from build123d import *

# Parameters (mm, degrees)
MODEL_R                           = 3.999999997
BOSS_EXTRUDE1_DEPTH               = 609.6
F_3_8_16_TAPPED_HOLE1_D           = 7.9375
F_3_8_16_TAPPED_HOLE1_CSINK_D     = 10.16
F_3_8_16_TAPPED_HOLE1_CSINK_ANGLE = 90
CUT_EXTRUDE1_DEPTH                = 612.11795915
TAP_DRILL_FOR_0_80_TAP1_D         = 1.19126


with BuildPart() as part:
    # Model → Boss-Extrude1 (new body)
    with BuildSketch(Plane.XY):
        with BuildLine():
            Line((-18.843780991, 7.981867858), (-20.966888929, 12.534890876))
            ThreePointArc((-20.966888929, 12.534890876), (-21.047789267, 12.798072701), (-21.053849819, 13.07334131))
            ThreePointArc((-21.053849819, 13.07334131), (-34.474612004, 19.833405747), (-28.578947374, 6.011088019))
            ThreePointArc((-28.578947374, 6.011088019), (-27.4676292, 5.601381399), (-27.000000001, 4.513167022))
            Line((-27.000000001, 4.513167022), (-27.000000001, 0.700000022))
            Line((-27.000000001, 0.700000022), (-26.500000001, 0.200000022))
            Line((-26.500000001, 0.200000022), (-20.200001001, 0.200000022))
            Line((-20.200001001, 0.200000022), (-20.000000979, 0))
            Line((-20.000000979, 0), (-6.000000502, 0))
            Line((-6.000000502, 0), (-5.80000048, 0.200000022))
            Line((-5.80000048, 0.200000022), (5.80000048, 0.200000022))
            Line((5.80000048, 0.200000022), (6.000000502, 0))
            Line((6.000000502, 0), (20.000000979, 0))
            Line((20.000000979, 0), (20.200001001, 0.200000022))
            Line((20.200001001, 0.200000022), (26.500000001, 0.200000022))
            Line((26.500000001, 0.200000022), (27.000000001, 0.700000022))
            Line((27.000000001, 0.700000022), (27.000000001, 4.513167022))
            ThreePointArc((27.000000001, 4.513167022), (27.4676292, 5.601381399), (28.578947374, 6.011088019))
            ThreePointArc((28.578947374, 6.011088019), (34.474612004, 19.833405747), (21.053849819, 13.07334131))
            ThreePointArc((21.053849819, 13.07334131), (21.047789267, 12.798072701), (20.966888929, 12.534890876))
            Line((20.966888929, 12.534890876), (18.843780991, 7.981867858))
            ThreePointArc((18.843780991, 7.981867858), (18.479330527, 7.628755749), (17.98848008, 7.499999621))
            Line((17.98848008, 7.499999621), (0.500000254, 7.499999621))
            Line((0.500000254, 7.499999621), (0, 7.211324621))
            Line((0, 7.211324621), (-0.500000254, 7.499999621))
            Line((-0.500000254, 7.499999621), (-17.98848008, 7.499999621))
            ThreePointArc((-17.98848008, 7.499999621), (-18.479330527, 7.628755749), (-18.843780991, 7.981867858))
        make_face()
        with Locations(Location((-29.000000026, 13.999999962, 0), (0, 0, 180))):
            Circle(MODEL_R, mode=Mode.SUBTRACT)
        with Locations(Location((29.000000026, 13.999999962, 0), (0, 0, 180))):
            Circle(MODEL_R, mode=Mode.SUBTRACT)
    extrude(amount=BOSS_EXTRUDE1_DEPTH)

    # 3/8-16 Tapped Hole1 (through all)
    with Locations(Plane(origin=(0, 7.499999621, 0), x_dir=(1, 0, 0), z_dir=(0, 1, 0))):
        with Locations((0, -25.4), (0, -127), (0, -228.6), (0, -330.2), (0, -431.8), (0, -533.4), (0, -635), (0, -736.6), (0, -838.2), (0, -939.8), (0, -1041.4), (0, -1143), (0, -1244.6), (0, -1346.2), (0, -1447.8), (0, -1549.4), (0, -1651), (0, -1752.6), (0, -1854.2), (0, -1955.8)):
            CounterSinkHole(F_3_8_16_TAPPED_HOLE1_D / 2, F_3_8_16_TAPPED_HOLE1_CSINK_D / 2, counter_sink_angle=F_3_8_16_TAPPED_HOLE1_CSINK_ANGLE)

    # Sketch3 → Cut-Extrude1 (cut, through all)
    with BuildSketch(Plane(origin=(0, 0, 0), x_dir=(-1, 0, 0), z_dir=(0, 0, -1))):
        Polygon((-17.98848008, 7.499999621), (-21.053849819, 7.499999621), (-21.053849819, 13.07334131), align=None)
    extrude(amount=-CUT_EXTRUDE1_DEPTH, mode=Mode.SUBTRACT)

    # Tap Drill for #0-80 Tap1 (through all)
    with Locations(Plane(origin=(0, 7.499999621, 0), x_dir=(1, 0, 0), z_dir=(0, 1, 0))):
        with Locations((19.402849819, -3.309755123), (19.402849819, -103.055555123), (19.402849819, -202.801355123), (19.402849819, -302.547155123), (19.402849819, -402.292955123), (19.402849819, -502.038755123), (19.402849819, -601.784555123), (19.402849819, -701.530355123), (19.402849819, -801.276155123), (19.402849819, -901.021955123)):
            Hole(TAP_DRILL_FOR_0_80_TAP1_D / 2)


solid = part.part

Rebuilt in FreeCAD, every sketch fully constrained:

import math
import FreeCAD as App
import Part
import Sketcher

V = App.Vector


def add_polygon(sketch, points):
    """Adds a closed chain of lines whose ends are joined by coincident constraints."""
    first, n = sketch.GeometryCount, len(points)
    for a, b in zip(points, points[1:] + points[:1]):
        sketch.addGeometry(Part.LineSegment(App.Vector(*a, 0), App.Vector(*b, 0)), False)
    for i in range(n):
        sketch.addConstraint(Sketcher.Constraint("Coincident", first + i, 2, first + (i + 1) % n, 1))

doc = App.newDocument("Part")
body = doc.addObject("PartDesign::Body", "Body")

# Sketch on XY plane
sketch1 = body.newObject("Sketcher::SketchObject", "Sketch")
sketch1.AttachmentSupport = (doc.getObject("XY_Plane"), [""])
sketch1.MapMode = "FlatFace"
sketch1.addGeometry([
    Part.LineSegment(V(-18.843781, 7.981868, 0), V(-20.966889, 12.534891, 0)),  # 0
    Part.ArcOfCircle(Part.Circle(V(-20.060581, 12.957509, 0), V(0, 0, 1), 1), math.radians(173.348365), math.radians(204.999984)),  # 1
    Part.ArcOfCircle(Part.Circle(V(-29, 14, 0), V(0, 0, 1), 8), math.radians(-6.651635), math.radians(273.016961)),  # 2
    Part.ArcOfCircle(Part.Circle(V(-28.5, 4.513167, 0), V(0, 0, 1), 1.5), math.radians(0), math.radians(93.016961)),  # 3
    Part.LineSegment(V(-27, 4.513167, 0), V(-27, 0.7, 0)),  # 4
    Part.LineSegment(V(-27, 0.7, 0), V(-26.5, 0.2, 0)),  # 5
    Part.LineSegment(V(-26.5, 0.2, 0), V(-20.200001, 0.2, 0)),  # 6
    Part.LineSegment(V(-20.200001, 0.2, 0), V(-20.000001, 0, 0)),  # 7
    Part.LineSegment(V(-20.000001, 0, 0), V(-6.000001, 0, 0)),  # 8
    Part.LineSegment(V(-6.000001, 0, 0), V(-5.8, 0.2, 0)),  # 9
    Part.LineSegment(V(-5.8, 0.2, 0), V(5.8, 0.2, 0)),  # 10
    Part.LineSegment(V(5.8, 0.2, 0), V(6.000001, 0, 0)),  # 11
    Part.LineSegment(V(6.000001, 0, 0), V(20.000001, 0, 0)),  # 12
    Part.LineSegment(V(20.000001, 0, 0), V(20.200001, 0.2, 0)),  # 13
    Part.LineSegment(V(20.200001, 0.2, 0), V(26.5, 0.2, 0)),  # 14
    Part.LineSegment(V(26.5, 0.2, 0), V(27, 0.7, 0)),  # 15
    Part.LineSegment(V(27, 0.7, 0), V(27, 4.513167, 0)),  # 16
    Part.ArcOfCircle(Part.Circle(V(28.5, 4.513167, 0), V(0, 0, 1), 1.5), math.radians(86.983039), math.radians(180)),  # 17
    Part.ArcOfCircle(Part.Circle(V(29, 14, 0), V(0, 0, 1), 8), math.radians(-93.016961), math.radians(186.651635)),  # 18
    Part.ArcOfCircle(Part.Circle(V(20.060581, 12.957509, 0), V(0, 0, 1), 1), math.radians(-24.999984), math.radians(6.651635)),  # 19
    Part.LineSegment(V(20.966889, 12.534891, 0), V(18.843781, 7.981868, 0)),  # 20
    Part.ArcOfCircle(Part.Circle(V(17.98848, 8.5, 0), V(0, 0, 1), 1), math.radians(-90), math.radians(-31.207023)),  # 21
    Part.LineSegment(V(17.98848, 7.5, 0), V(0.5, 7.5, 0)),  # 22
    Part.LineSegment(V(0.5, 7.5, 0), V(0, 7.211325, 0)),  # 23
    Part.LineSegment(V(0, 7.211325, 0), V(-0.5, 7.5, 0)),  # 24
    Part.LineSegment(V(-0.5, 7.5, 0), V(-17.98848, 7.5, 0)),  # 25
    Part.ArcOfCircle(Part.Circle(V(-17.98848, 8.5, 0), V(0, 0, 1), 1), math.radians(-148.792977), math.radians(-90)),  # 26
    Part.Circle(V(-29, 14, 0), V(0, 0, 1), 4),  # 27
    Part.Circle(V(29, 14, 0), V(0, 0, 1), 4),  # 28
], False)
sketch1.addConstraint([
    Sketcher.Constraint("Coincident", 0, 2, 1, 2),
    Sketcher.Constraint("Coincident", 1, 1, 2, 1),
    Sketcher.Constraint("Coincident", 2, 2, 3, 2),
    Sketcher.Constraint("Coincident", 3, 1, 4, 1),
    Sketcher.Constraint("Coincident", 4, 2, 5, 1),
    Sketcher.Constraint("Coincident", 5, 2, 6, 1),
    Sketcher.Constraint("Coincident", 6, 2, 7, 1),
    Sketcher.Constraint("Coincident", 7, 2, 8, 1),
    Sketcher.Constraint("Coincident", 8, 2, 9, 1),
    Sketcher.Constraint("Coincident", 9, 2, 10, 1),
    Sketcher.Constraint("Coincident", 10, 2, 11, 1),
    Sketcher.Constraint("Coincident", 11, 2, 12, 1),
    Sketcher.Constraint("Coincident", 12, 2, 13, 1),
    Sketcher.Constraint("Coincident", 13, 2, 14, 1),
    Sketcher.Constraint("Coincident", 14, 2, 15, 1),
    Sketcher.Constraint("Coincident", 15, 2, 16, 1),
    Sketcher.Constraint("Coincident", 16, 2, 17, 2),
    Sketcher.Constraint("Coincident", 17, 1, 18, 1),
    Sketcher.Constraint("Coincident", 18, 2, 19, 2),
    Sketcher.Constraint("Coincident", 19, 1, 20, 1),
    Sketcher.Constraint("Coincident", 20, 2, 21, 2),
    Sketcher.Constraint("Coincident", 21, 1, 22, 1),
    Sketcher.Constraint("Coincident", 22, 2, 23, 1),
    Sketcher.Constraint("Coincident", 23, 2, 24, 1),
    Sketcher.Constraint("Coincident", 24, 2, 25, 1),
    Sketcher.Constraint("Coincident", 25, 2, 26, 2),
    Sketcher.Constraint("Coincident", 26, 1, 0, 1),
    Sketcher.Constraint("Vertical", 4),
    Sketcher.Constraint("Horizontal", 6),
    Sketcher.Constraint("Horizontal", 8),
    Sketcher.Constraint("Horizontal", 10),
    Sketcher.Constraint("Horizontal", 12),
    Sketcher.Constraint("Horizontal", 14),
    Sketcher.Constraint("Vertical", 16),
    Sketcher.Constraint("Horizontal", 22),
    Sketcher.Constraint("Horizontal", 25),
    Sketcher.Constraint("Coincident", 27, 3, 2, 3),
    Sketcher.Constraint("Coincident", 28, 3, 18, 3),
    Sketcher.Constraint("PointOnObject", 7, 2, -1),
    Sketcher.Constraint("PointOnObject", 11, 2, -1),
    Sketcher.Constraint("PointOnObject", 23, 2, -2),
    Sketcher.Constraint("Diameter", 27, 8.0),
    Sketcher.Constraint("Diameter", 28, 8.0),
    Sketcher.Constraint("Radius", 1, 1.0),
    Sketcher.Constraint("Radius", 2, 8.0),
    Sketcher.Constraint("Radius", 18, 8.0),
    Sketcher.Constraint("Radius", 19, 1.0),
    Sketcher.Constraint("Radius", 21, 1.0),
    Sketcher.Constraint("Radius", 26, 1.0),
    Sketcher.Constraint("Radius", 3, 1.5),
    Sketcher.Constraint("Radius", 17, 1.5),
    Sketcher.Constraint("DistanceX", 8, 1, 8, 2, 14.0),
    Sketcher.Constraint("DistanceX", 12, 1, 12, 2, 14.0),
    Sketcher.Constraint("DistanceX", 6, 1, 6, 2, 6.299999),
    Sketcher.Constraint("DistanceX", 10, 1, 10, 2, 11.600001),
    Sketcher.Constraint("DistanceX", 14, 1, 14, 2, 6.299999),
    Sketcher.Constraint("DistanceX", 2, 3, -1, 1, 29.0),
    Sketcher.Constraint("DistanceY", -1, 1, 2, 3, 14.0),
    Sketcher.Constraint("DistanceX", -1, 1, 18, 3, 29.0),
    Sketcher.Constraint("DistanceY", -1, 1, 18, 3, 14.0),
    Sketcher.Constraint("DistanceX", 3, 1, -1, 1, 27.0),
    Sketcher.Constraint("DistanceX", 7, 2, -1, 1, 20.000001),
    Sketcher.Constraint("DistanceX", -1, 1, 11, 2, 6.000001),
    Sketcher.Constraint("DistanceX", -1, 1, 15, 2, 27.0),
    Sketcher.Constraint("DistanceX", 3, 3, 5, 2, 2.0),
    Sketcher.Constraint("DistanceX", 14, 2, 17, 3, 2.0),
    Sketcher.Constraint("DistanceX", 24, 2, 22, 2, 1.000001),
    Sketcher.Constraint("DistanceY", -1, 1, 21, 3, 8.5),
    Sketcher.Constraint("DistanceY", -1, 1, 26, 3, 8.5),
    Sketcher.Constraint("DistanceY", -1, 1, 4, 2, 0.7),
    Sketcher.Constraint("DistanceY", -1, 1, 5, 2, 0.2),
    Sketcher.Constraint("DistanceX", 9, 2, -1, 1, 5.8),
    Sketcher.Constraint("DistanceY", -1, 1, 9, 2, 0.2),
    Sketcher.Constraint("DistanceY", -1, 1, 13, 2, 0.2),
    Sketcher.Constraint("DistanceY", -1, 1, 15, 2, 0.7),
    Sketcher.Constraint("DistanceX", -1, 1, 22, 2, 0.5),
    Sketcher.Constraint("DistanceX", 22, 2, 22, 1, 17.48848),
    Sketcher.Constraint("DistanceX", 25, 2, 25, 1, 17.48848),
    Sketcher.Constraint("DistanceX", 21, 3, 19, 3, 2.072101),
    Sketcher.Constraint("DistanceX", 1, 3, 26, 3, 2.072101),
    Sketcher.Constraint("DistanceX", 21, 3, 20, 2, 0.855301),
    Sketcher.Constraint("DistanceX", 21, 1, 20, 2, 0.855301),
    Sketcher.Constraint("DistanceX", 1, 3, 25, 2, 2.072101),
    Sketcher.Constraint("DistanceX", 26, 1, 25, 2, 0.855301),
    Sketcher.Constraint("Distance", 23, 0.57735),
    Sketcher.Constraint("DistanceY", 4, 2, 4, 1, 3.813167),
    Sketcher.Constraint("DistanceY", 16, 1, 16, 2, 3.813167),
    Sketcher.Constraint("DistanceX", 0, 2, -1, 1, 20.966889),
    Sketcher.Constraint("DistanceX", 1, 1, -1, 1, 21.05385),
    Sketcher.Constraint("DistanceY", -1, 1, 2, 2, 6.011088),
    Sketcher.Constraint("DistanceY", -1, 1, 17, 1, 6.011088),
    Sketcher.Constraint("DistanceX", -1, 1, 18, 2, 21.05385),
    Sketcher.Constraint("DistanceX", -1, 1, 19, 1, 20.966889),
])
pad1 = body.newObject("PartDesign::Pad", "Pad")
pad1.Profile = sketch1
pad1.Length = 609.6

# Sketch on XZ plane
sketch2 = body.newObject("Sketcher::SketchObject", "Sketch001")
sketch2.AttachmentSupport = (doc.getObject("XZ_Plane"), [""])
sketch2.MapMode = "FlatFace"
sketch2.AttachmentOffset = App.Placement(V(0, 0, -7.5), App.Rotation())
sketch2.addGeometry([
    Part.Circle(V(0, 25.4, 0), V(0, 0, 1), 3.96875),  # 0
    Part.Circle(V(0, 127, 0), V(0, 0, 1), 3.96875),  # 1
    Part.Circle(V(0, 228.6, 0), V(0, 0, 1), 3.96875),  # 2
    Part.Circle(V(0, 330.2, 0), V(0, 0, 1), 3.96875),  # 3
    Part.Circle(V(0, 431.8, 0), V(0, 0, 1), 3.96875),  # 4
    Part.Circle(V(0, 533.4, 0), V(0, 0, 1), 3.96875),  # 5
    Part.Circle(V(0, 635, 0), V(0, 0, 1), 3.96875),  # 6
    Part.Circle(V(0, 736.6, 0), V(0, 0, 1), 3.96875),  # 7
    Part.Circle(V(0, 838.2, 0), V(0, 0, 1), 3.96875),  # 8
    Part.Circle(V(0, 939.8, 0), V(0, 0, 1), 3.96875),  # 9
    Part.Circle(V(0, 1041.4, 0), V(0, 0, 1), 3.96875),  # 10
    Part.Circle(V(0, 1143, 0), V(0, 0, 1), 3.96875),  # 11
    Part.Circle(V(0, 1244.6, 0), V(0, 0, 1), 3.96875),  # 12
    Part.Circle(V(0, 1346.2, 0), V(0, 0, 1), 3.96875),  # 13
    Part.Circle(V(0, 1447.8, 0), V(0, 0, 1), 3.96875),  # 14
    Part.Circle(V(0, 1549.4, 0), V(0, 0, 1), 3.96875),  # 15
    Part.Circle(V(0, 1651, 0), V(0, 0, 1), 3.96875),  # 16
    Part.Circle(V(0, 1752.6, 0), V(0, 0, 1), 3.96875),  # 17
    Part.Circle(V(0, 1854.2, 0), V(0, 0, 1), 3.96875),  # 18
    Part.Circle(V(0, 1955.8, 0), V(0, 0, 1), 3.96875),  # 19
], False)
sketch2.addConstraint([
    Sketcher.Constraint("Equal", 0, 1),
    Sketcher.Constraint("Equal", 1, 2),
    Sketcher.Constraint("Equal", 2, 3),
    Sketcher.Constraint("Equal", 3, 4),
    Sketcher.Constraint("Equal", 4, 5),
    Sketcher.Constraint("Equal", 5, 6),
    Sketcher.Constraint("Equal", 6, 7),
    Sketcher.Constraint("Equal", 7, 8),
    Sketcher.Constraint("Equal", 8, 9),
    Sketcher.Constraint("Equal", 9, 10),
    Sketcher.Constraint("Equal", 10, 11),
    Sketcher.Constraint("Equal", 11, 12),
    Sketcher.Constraint("Equal", 12, 13),
    Sketcher.Constraint("Equal", 13, 14),
    Sketcher.Constraint("Equal", 14, 15),
    Sketcher.Constraint("Equal", 15, 16),
    Sketcher.Constraint("Equal", 16, 17),
    Sketcher.Constraint("Equal", 17, 18),
    Sketcher.Constraint("Equal", 18, 19),
    Sketcher.Constraint("PointOnObject", 0, 3, -2),
    Sketcher.Constraint("PointOnObject", 1, 3, -2),
    Sketcher.Constraint("PointOnObject", 2, 3, -2),
    Sketcher.Constraint("PointOnObject", 3, 3, -2),
    Sketcher.Constraint("PointOnObject", 4, 3, -2),
    Sketcher.Constraint("PointOnObject", 5, 3, -2),
    Sketcher.Constraint("PointOnObject", 6, 3, -2),
    Sketcher.Constraint("PointOnObject", 7, 3, -2),
    Sketcher.Constraint("PointOnObject", 8, 3, -2),
    Sketcher.Constraint("PointOnObject", 9, 3, -2),
    Sketcher.Constraint("PointOnObject", 10, 3, -2),
    Sketcher.Constraint("PointOnObject", 11, 3, -2),
    Sketcher.Constraint("PointOnObject", 12, 3, -2),
    Sketcher.Constraint("PointOnObject", 13, 3, -2),
    Sketcher.Constraint("PointOnObject", 14, 3, -2),
    Sketcher.Constraint("PointOnObject", 15, 3, -2),
    Sketcher.Constraint("PointOnObject", 16, 3, -2),
    Sketcher.Constraint("PointOnObject", 17, 3, -2),
    Sketcher.Constraint("PointOnObject", 18, 3, -2),
    Sketcher.Constraint("PointOnObject", 19, 3, -2),
    Sketcher.Constraint("DistanceY", -1, 1, 1, 3, 127.0),
    Sketcher.Constraint("DistanceY", -1, 1, 6, 3, 635.0),
    Sketcher.Constraint("DistanceY", -1, 1, 11, 3, 1143.0),
    Sketcher.Constraint("DistanceY", -1, 1, 16, 3, 1651.0),
    Sketcher.Constraint("DistanceY", 0, 3, 5, 3, 508.0),
    Sketcher.Constraint("DistanceY", 2, 3, 7, 3, 508.0),
    Sketcher.Constraint("DistanceY", 3, 3, 8, 3, 508.0),
    Sketcher.Constraint("DistanceY", 4, 3, 9, 3, 508.0),
    Sketcher.Constraint("DistanceY", 5, 3, 10, 3, 508.0),
    Sketcher.Constraint("DistanceY", 7, 3, 12, 3, 508.0),
    Sketcher.Constraint("DistanceY", 8, 3, 13, 3, 508.0),
    Sketcher.Constraint("DistanceY", 9, 3, 14, 3, 508.0),
    Sketcher.Constraint("DistanceY", 10, 3, 15, 3, 508.0),
    Sketcher.Constraint("DistanceY", 12, 3, 17, 3, 508.0),
    Sketcher.Constraint("DistanceY", 13, 3, 18, 3, 508.0),
    Sketcher.Constraint("DistanceY", 14, 3, 19, 3, 508.0),
    Sketcher.Constraint("Diameter", 0, 7.9375),
    Sketcher.Constraint("DistanceY", -1, 1, 0, 3, 25.4),
    Sketcher.Constraint("DistanceY", -1, 1, 2, 3, 228.6),
    Sketcher.Constraint("DistanceY", -1, 1, 3, 3, 330.2),
    Sketcher.Constraint("DistanceY", -1, 1, 4, 3, 431.8),
])
doc.recompute()
hole = body.newObject("PartDesign::Hole", "Hole")
hole.Profile = sketch2
hole.ThreadType = "None"
hole.Diameter = 7.9375
hole.DepthType = "ThroughAll"
hole.HoleCutType = "Countersink"
hole.HoleCutDiameter = 10.16
hole.HoleCutCountersinkAngle = 90
hole.Reversed = True

# Sketch on XY plane
sketch3 = body.newObject("Sketcher::SketchObject", "Sketch002")
sketch3.AttachmentSupport = (doc.getObject("XY_Plane"), [""])
sketch3.MapMode = "FlatFace"
add_polygon(sketch3, [(21.05385, 7.5), (17.98848, 7.5), (21.05385, 13.073341)])  # lines 0-2
sketch3.addConstraint([
    Sketcher.Constraint("Horizontal", 0),
    Sketcher.Constraint("Vertical", 2),
    Sketcher.Constraint("DistanceY", -1, 1, 0, 2, 7.5),
    Sketcher.Constraint("DistanceX", 0, 2, 0, 1, 3.06537),
    Sketcher.Constraint("DistanceY", 2, 2, 2, 1, 5.573342),
    Sketcher.Constraint("DistanceX", -1, 1, 0, 2, 17.98848),
])
pocket1 = body.newObject("PartDesign::Pocket", "Pocket")
pocket1.Profile = sketch3
pocket1.Type = "ThroughAll"
pocket1.Reversed = True

# Sketch on XZ plane
sketch4 = body.newObject("Sketcher::SketchObject", "Sketch003")
sketch4.AttachmentSupport = (doc.getObject("XZ_Plane"), [""])
sketch4.MapMode = "FlatFace"
sketch4.AttachmentOffset = App.Placement(V(0, 0, -7.5), App.Rotation())
sketch4.addGeometry([
    Part.Circle(V(19.40285, 3.309755, 0), V(0, 0, 1), 0.59563),  # 0
    Part.Circle(V(19.40285, 103.055555, 0), V(0, 0, 1), 0.59563),  # 1
    Part.Circle(V(19.40285, 202.801355, 0), V(0, 0, 1), 0.59563),  # 2
    Part.Circle(V(19.40285, 302.547155, 0), V(0, 0, 1), 0.59563),  # 3
    Part.Circle(V(19.40285, 402.292955, 0), V(0, 0, 1), 0.59563),  # 4
    Part.Circle(V(19.40285, 502.038755, 0), V(0, 0, 1), 0.59563),  # 5
    Part.Circle(V(19.40285, 601.784555, 0), V(0, 0, 1), 0.59563),  # 6
    Part.Circle(V(19.40285, 701.530355, 0), V(0, 0, 1), 0.59563),  # 7
    Part.Circle(V(19.40285, 801.276155, 0), V(0, 0, 1), 0.59563),  # 8
    Part.Circle(V(19.40285, 901.021955, 0), V(0, 0, 1), 0.59563),  # 9
], False)
sketch4.addConstraint([
    Sketcher.Constraint("Equal", 0, 1),
    Sketcher.Constraint("Equal", 1, 2),
    Sketcher.Constraint("Equal", 2, 3),
    Sketcher.Constraint("Equal", 3, 4),
    Sketcher.Constraint("Equal", 4, 5),
    Sketcher.Constraint("Equal", 5, 6),
    Sketcher.Constraint("Equal", 6, 7),
    Sketcher.Constraint("Equal", 7, 8),
    Sketcher.Constraint("Equal", 8, 9),
    Sketcher.Constraint("Vertical", 0, 3, 1, 3),
    Sketcher.Constraint("Vertical", 1, 3, 2, 3),
    Sketcher.Constraint("Vertical", 2, 3, 3, 3),
    Sketcher.Constraint("Vertical", 3, 3, 4, 3),
    Sketcher.Constraint("Vertical", 4, 3, 5, 3),
    Sketcher.Constraint("Vertical", 5, 3, 6, 3),
    Sketcher.Constraint("Vertical", 6, 3, 7, 3),
    Sketcher.Constraint("Vertical", 7, 3, 8, 3),
    Sketcher.Constraint("Vertical", 8, 3, 9, 3),
    Sketcher.Constraint("Diameter", 0, 1.19126),
    Sketcher.Constraint("DistanceY", 0, 3, 5, 3, 498.729),
    Sketcher.Constraint("DistanceY", 1, 3, 6, 3, 498.729),
    Sketcher.Constraint("DistanceY", 2, 3, 7, 3, 498.729),
    Sketcher.Constraint("DistanceY", 3, 3, 8, 3, 498.729),
    Sketcher.Constraint("DistanceY", 4, 3, 9, 3, 498.729),
    Sketcher.Constraint("DistanceY", 0, 3, 1, 3, 99.7458),
    Sketcher.Constraint("DistanceY", 1, 3, 2, 3, 99.7458),
    Sketcher.Constraint("DistanceY", 2, 3, 3, 3, 99.7458),
    Sketcher.Constraint("DistanceY", 3, 3, 4, 3, 99.7458),
    Sketcher.Constraint("DistanceX", -1, 1, 0, 3, 19.40285),
    Sketcher.Constraint("DistanceY", -1, 1, 0, 3, 3.309755),
])
doc.recompute()
hole2 = body.newObject("PartDesign::Hole", "Hole001")
hole2.Profile = sketch4
hole2.ThreadType = "None"
hole2.Diameter = 1.19126
hole2.DepthType = "ThroughAll"
hole2.Reversed = True

doc.recompute()
